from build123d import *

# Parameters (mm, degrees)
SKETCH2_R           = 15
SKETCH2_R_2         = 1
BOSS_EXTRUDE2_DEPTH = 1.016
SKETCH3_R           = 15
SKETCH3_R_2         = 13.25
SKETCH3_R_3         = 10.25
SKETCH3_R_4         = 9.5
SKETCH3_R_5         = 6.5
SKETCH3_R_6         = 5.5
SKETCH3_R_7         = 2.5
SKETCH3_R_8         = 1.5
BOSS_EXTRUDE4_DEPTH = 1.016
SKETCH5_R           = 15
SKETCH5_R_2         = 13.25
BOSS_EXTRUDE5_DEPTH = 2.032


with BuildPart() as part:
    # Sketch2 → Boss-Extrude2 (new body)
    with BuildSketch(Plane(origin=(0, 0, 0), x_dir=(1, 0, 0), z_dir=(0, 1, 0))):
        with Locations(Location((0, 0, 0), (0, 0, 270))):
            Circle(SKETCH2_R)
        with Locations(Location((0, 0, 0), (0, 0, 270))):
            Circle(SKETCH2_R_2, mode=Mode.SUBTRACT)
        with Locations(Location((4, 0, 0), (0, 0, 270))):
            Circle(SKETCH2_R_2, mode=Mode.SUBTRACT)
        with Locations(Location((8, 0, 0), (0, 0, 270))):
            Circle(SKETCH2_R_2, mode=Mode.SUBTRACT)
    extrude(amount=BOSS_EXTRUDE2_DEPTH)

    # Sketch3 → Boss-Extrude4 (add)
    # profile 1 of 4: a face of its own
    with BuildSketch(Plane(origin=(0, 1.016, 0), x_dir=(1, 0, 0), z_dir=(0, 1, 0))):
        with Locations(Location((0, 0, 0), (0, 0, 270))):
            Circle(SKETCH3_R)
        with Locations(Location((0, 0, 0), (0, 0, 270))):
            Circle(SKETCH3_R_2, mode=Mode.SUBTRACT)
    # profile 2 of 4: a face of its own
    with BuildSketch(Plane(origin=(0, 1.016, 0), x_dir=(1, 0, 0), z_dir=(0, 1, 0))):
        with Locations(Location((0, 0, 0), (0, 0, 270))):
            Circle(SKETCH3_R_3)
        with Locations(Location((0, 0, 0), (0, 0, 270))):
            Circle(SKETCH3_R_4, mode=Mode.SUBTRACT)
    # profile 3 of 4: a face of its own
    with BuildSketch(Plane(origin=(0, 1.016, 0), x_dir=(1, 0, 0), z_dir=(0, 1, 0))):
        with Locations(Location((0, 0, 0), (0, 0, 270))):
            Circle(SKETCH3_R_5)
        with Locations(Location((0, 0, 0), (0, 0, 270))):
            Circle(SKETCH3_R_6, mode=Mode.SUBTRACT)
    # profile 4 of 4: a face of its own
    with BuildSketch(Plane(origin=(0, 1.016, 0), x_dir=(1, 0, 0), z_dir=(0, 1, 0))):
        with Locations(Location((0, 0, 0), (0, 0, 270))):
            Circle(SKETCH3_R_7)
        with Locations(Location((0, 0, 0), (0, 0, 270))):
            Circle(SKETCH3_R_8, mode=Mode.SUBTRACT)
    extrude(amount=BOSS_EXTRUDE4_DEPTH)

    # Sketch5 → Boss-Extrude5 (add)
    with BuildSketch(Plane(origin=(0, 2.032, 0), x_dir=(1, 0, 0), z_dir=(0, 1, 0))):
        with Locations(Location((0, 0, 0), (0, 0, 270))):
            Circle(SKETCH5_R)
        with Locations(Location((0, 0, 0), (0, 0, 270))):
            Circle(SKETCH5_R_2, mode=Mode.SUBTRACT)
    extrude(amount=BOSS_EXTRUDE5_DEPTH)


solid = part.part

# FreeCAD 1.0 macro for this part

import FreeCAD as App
import Part
import Sketcher

doc = App.newDocument("Part")
params = doc.addObject("Spreadsheet::Sheet", "Params")
for row, (alias, value) in enumerate([
    ("sketch1_diameter", "30 mm"),
    ("sketch1_diameter2", "2 mm"),
    ("pad1_length", "1.016 mm"),
    ("sketch2_diameter", "30 mm"),
    ("sketch2_diameter2", "19 mm"),
    ("sketch2_diameter3", "13 mm"),
    ("sketch2_diameter4", "11 mm"),
    ("sketch2_diameter5", "5 mm"),
    ("pad2_length", "1.016 mm"),
    ("sketch3_diameter", "30 mm"),
    ("sketch3_diameter2", "26.5 mm"),
    ("pad3_length", "2.032 mm"),
], start=1):
    params.set(f"A{row}", alias)
    params.set(f"B{row}", "=" + value)
    params.setAlias(f"B{row}", alias)

body = doc.addObject("PartDesign::Body", "Body")

# Sketch on XZ plane
sketch1 = body.newObject("Sketcher::SketchObject", "Sketch")
sketch1.AttachmentSupport = (doc.getObject("XZ_Plane"), [""])
sketch1.MapMode = "FlatFace"
sketch1.addGeometry([
    Part.Circle(App.Vector(0, 0, 0), App.Vector(0, 0, 1), 15),
    Part.Circle(App.Vector(0, 0, 0), App.Vector(0, 0, 1), 1),
    Part.Circle(App.Vector(8, 0, 0), App.Vector(0, 0, 1), 1),
    Part.Circle(App.Vector(4, 0, 0), App.Vector(0, 0, 1), 1),
], False)
sketch1.addConstraint([
    Sketcher.Constraint("Coincident", 0, 3, -1, 1),
    Sketcher.Constraint("Coincident", 1, 3, -1, 1),
    Sketcher.Constraint("Equal", 1, 2),
    Sketcher.Constraint("Equal", 2, 3),
    Sketcher.Constraint("PointOnObject", 2, 3, -1),
    Sketcher.Constraint("PointOnObject", 3, 3, -1),
    Sketcher.Constraint("Diameter", 0, 30.0),
    Sketcher.Constraint("Diameter", 1, 2.0),
    Sketcher.Constraint("DistanceX", -1, 1, 2, 3, 8.0),
    Sketcher.Constraint("DistanceX", -1, 1, 3, 3, 4.0),
])
sketch1.setExpression("Constraints[6]", "Params.sketch1_diameter")
sketch1.setExpression("Constraints[7]", "Params.sketch1_diameter2")
pad1 = body.newObject("PartDesign::Pad", "Pad")
pad1.Profile = sketch1
pad1.setExpression("Length", "Params.pad1_length")
pad1.Reversed = True

# Sketch on XZ plane
sketch2 = body.newObject("Sketcher::SketchObject", "Sketch001")
sketch2.AttachmentSupport = (doc.getObject("XZ_Plane"), [""])
sketch2.MapMode = "FlatFace"
sketch2.AttachmentOffset = App.Placement(App.Vector(0, 0, -1.016), App.Rotation())
sketch2.addGeometry([
    Part.Circle(App.Vector(0, 0, 0), App.Vector(0, 0, 1), 15),  # 0
    Part.Circle(App.Vector(0, 0, 0), App.Vector(0, 0, 1), 13.2),  # 1
    Part.Circle(App.Vector(0, 0, 0), App.Vector(0, 0, 1), 10.2),  # 2
    Part.Circle(App.Vector(0, 0, 0), App.Vector(0, 0, 1), 9.5),  # 3
    Part.Circle(App.Vector(0, 0, 0), App.Vector(0, 0, 1), 6.5),  # 4
    Part.Circle(App.Vector(0, 0, 0), App.Vector(0, 0, 1), 5.5),  # 5
    Part.Circle(App.Vector(0, 0, 0), App.Vector(0, 0, 1), 2.5),  # 6
    Part.Circle(App.Vector(0, 0, 0), App.Vector(0, 0, 1), 1.5),  # 7
], False)
sketch2.addConstraint([
    Sketcher.Constraint("Coincident", 0, 3, -1, 1),
    Sketcher.Constraint("Coincident", 1, 3, -1, 1),
    Sketcher.Constraint("Coincident", 2, 3, -1, 1),
    Sketcher.Constraint("Coincident", 3, 3, -1, 1),
    Sketcher.Constraint("Coincident", 4, 3, -1, 1),
    Sketcher.Constraint("Coincident", 5, 3, -1, 1),
    Sketcher.Constraint("Coincident", 6, 3, -1, 1),
    Sketcher.Constraint("Coincident", 7, 3, -1, 1),
    Sketcher.Constraint("Diameter", 0, 30.0),
    Sketcher.Constraint("Diameter", 3, 19.0),
    Sketcher.Constraint("Diameter", 4, 13.0),
    Sketcher.Constraint("Diameter", 5, 11.0),
    Sketcher.Constraint("Diameter", 6, 5.0),
    Sketcher.Constraint("Diameter", 7, 3.0),
    Sketcher.Constraint("Diameter", 1, 26.5),
    Sketcher.Constraint("Diameter", 2, 20.5),
])
sketch2.setExpression("Constraints[8]", "Params.sketch2_diameter")
sketch2.setExpression("Constraints[9]", "Params.sketch2_diameter2")
sketch2.setExpression("Constraints[10]", "Params.sketch2_diameter3")
sketch2.setExpression("Constraints[11]", "Params.sketch2_diameter4")
sketch2.setExpression("Constraints[12]", "Params.sketch2_diameter5")
pad2 = body.newObject("PartDesign::Pad", "Pad001")
pad2.Profile = sketch2
pad2.setExpression("Length", "Params.pad2_length")
pad2.Reversed = True

# Sketch on XZ plane
sketch3 = body.newObject("Sketcher::SketchObject", "Sketch002")
sketch3.AttachmentSupport = (doc.getObject("XZ_Plane"), [""])
sketch3.MapMode = "FlatFace"
sketch3.AttachmentOffset = App.Placement(App.Vector(0, 0, -2.032), App.Rotation())
sketch3.addGeometry([
    Part.Circle(App.Vector(0, 0, 0), App.Vector(0, 0, 1), 15),
    Part.Circle(App.Vector(0, 0, 0), App.Vector(0, 0, 1), 13),
], False)
sketch3.addConstraint([
    Sketcher.Constraint("Coincident", 0, 3, -1, 1),
    Sketcher.Constraint("Coincident", 1, 3, -1, 1),
    Sketcher.Constraint("Diameter", 0, 30.0),
    Sketcher.Constraint("Diameter", 1, 26.5),
])
sketch3.setExpression("Constraints[2]", "Params.sketch3_diameter")
sketch3.setExpression("Constraints[3]", "Params.sketch3_diameter2")
pad3 = body.newObject("PartDesign::Pad", "Pad002")
pad3.Profile = sketch3
pad3.setExpression("Length", "Params.pad3_length")
pad3.Reversed = True

doc.recompute()
